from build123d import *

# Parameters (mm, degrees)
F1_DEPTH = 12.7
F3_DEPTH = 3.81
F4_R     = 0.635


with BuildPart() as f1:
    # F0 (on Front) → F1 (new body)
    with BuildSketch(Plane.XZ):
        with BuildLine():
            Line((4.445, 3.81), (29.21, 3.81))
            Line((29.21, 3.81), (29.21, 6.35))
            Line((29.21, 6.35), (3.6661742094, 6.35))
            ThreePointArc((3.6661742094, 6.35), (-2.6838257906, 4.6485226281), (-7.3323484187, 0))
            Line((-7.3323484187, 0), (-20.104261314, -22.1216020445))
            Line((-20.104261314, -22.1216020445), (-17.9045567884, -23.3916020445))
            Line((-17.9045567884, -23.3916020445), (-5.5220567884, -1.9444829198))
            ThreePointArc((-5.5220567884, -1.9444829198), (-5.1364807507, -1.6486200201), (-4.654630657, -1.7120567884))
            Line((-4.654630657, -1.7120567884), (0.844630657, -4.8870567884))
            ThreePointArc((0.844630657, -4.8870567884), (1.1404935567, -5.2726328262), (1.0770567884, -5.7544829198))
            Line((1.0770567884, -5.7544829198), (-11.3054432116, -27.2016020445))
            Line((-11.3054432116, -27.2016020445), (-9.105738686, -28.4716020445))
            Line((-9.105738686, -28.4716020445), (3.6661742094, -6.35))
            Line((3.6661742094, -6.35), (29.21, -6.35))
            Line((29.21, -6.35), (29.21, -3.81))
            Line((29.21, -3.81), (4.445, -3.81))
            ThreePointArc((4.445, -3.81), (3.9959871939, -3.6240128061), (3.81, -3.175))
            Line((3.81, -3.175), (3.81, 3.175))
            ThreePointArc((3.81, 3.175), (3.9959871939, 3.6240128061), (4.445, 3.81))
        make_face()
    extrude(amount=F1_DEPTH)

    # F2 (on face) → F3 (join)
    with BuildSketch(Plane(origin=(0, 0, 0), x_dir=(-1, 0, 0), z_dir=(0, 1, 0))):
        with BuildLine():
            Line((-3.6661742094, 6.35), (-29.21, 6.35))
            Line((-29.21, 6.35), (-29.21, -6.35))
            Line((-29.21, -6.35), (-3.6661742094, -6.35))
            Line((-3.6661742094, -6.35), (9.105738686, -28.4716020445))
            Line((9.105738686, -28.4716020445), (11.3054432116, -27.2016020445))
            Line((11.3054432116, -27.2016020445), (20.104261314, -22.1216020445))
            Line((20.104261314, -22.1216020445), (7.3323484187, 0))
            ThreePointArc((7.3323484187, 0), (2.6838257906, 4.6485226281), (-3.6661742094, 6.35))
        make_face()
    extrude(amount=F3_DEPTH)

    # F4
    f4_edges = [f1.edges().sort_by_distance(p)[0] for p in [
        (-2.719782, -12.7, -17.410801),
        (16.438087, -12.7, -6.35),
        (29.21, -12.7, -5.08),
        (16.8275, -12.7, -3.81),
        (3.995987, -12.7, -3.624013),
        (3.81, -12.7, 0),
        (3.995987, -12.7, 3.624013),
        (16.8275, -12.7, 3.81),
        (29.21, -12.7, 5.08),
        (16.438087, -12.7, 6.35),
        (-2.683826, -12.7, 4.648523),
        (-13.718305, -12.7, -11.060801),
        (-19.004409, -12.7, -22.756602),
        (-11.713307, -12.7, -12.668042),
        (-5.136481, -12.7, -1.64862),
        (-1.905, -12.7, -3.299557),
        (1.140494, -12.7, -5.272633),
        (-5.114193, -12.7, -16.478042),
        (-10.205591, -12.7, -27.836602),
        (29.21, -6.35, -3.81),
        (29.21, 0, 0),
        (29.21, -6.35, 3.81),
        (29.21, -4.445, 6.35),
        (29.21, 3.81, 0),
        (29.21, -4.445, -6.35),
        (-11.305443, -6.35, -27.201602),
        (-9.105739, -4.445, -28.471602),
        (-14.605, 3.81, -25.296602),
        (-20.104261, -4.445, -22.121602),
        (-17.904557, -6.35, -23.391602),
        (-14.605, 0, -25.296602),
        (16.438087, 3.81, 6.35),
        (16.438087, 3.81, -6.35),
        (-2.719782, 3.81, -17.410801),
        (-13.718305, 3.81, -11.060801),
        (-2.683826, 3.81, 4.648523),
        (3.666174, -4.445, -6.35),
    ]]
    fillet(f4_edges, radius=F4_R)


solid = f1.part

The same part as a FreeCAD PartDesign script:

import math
import FreeCAD as App
import Part
import Sketcher

V = App.Vector
Q = App.Units.Quantity


def edges_at(feature, points):
    """Names of the edges that pass closest to the given points."""
    edges = feature.Shape.Edges
    near = lambda p: min(range(len(edges)), key=lambda i: edges[i].distToShape(Part.Vertex(*p))[0])
    return sorted({f"Edge{near(p) + 1}" for p in points})

doc = App.newDocument("Part")
params = doc.addObject("Spreadsheet::Sheet", "Params")
for row, (alias, value) in enumerate([
    ("sketch1_radius", "0.5 in"),
    ("sketch1_height", "0.1 in"),
    ("sketch1_radius2", "0.025 in"),
    ("sketch1_length", "0.1 in"),
    ("sketch1_width", "0.975 in"),
    ("pad1_length", "0.5 in"),
    ("sketch2_radius", "0.5 in"),
    ("pad2_length", "0.15 in"),
    ("fillet_radius", "0.025 in"),
], start=1):
    params.set(f"A{row}", alias)
    params.set(f"B{row}", "=" + value)
    params.setAlias(f"B{row}", alias)

body = doc.addObject("PartDesign::Body", "Body")

sketch1 = doc.addObject("Sketcher::SketchObject", "Sketch")
body.addObject(sketch1)
sketch1.AttachmentSupport = (doc.XZ_Plane, [""])
sketch1.MapMode = "FlatFace"
sketch1.addGeometry(Part.LineSegment(V(4.445, 3.81, 0), V(29.21, 3.81, 0)), False)
sketch1.addGeometry(Part.LineSegment(V(29.21, 3.81, 0), V(29.21, 6.35, 0)), False)
sketch1.addGeometry(Part.LineSegment(V(29.21, 6.35, 0), V(3.666174, 6.35, 0)), False)
sketch1.addGeometry(Part.ArcOfCircle(Part.Circle(V(3.666174, -6.35, 0), V(0, 0, 1), 12.7), math.radians(90), math.radians(150)), False)
sketch1.addGeometry(Part.LineSegment(V(-7.332348, 0, 0), V(-20.104261, -22.121602, 0)), False)
sketch1.addGeometry(Part.LineSegment(V(-20.104261, -22.121602, 0), V(-17.904557, -23.391602, 0)), False)
sketch1.addGeometry(Part.LineSegment(V(-17.904557, -23.391602, 0), V(-5.522057, -1.944483, 0)), False)
sketch1.addGeometry(Part.ArcOfCircle(Part.Circle(V(-4.972131, -2.261983, 0), V(0, 0, 1), 0.635), math.radians(60), math.radians(150)), False)
sketch1.addGeometry(Part.LineSegment(V(-4.654631, -1.712057, 0), V(0.844631, -4.887057, 0)), False)
sketch1.addGeometry(Part.ArcOfCircle(Part.Circle(V(0.527131, -5.436983, 0), V(0, 0, 1), 0.635), math.radians(-30), math.radians(60)), False)
sketch1.addGeometry(Part.LineSegment(V(1.077057, -5.754483, 0), V(-11.305443, -27.201602, 0)), False)
sketch1.addGeometry(Part.LineSegment(V(-11.305443, -27.201602, 0), V(-9.105739, -28.471602, 0)), False)
sketch1.addGeometry(Part.LineSegment(V(-9.105739, -28.471602, 0), V(3.666174, -6.35, 0)), False)
sketch1.addGeometry(Part.LineSegment(V(3.666174, -6.35, 0), V(29.21, -6.35, 0)), False)
sketch1.addGeometry(Part.LineSegment(V(29.21, -6.35, 0), V(29.21, -3.81, 0)), False)
sketch1.addGeometry(Part.LineSegment(V(29.21, -3.81, 0), V(4.445, -3.81, 0)), False)
sketch1.addGeometry(Part.ArcOfCircle(Part.Circle(V(4.445, -3.175, 0), V(0, 0, 1), 0.635), math.radians(180), math.radians(270)), False)
sketch1.addGeometry(Part.LineSegment(V(3.81, -3.175, 0), V(3.81, 3.175, 0)), False)
sketch1.addGeometry(Part.ArcOfCircle(Part.Circle(V(4.445, 3.175, 0), V(0, 0, 1), 0.635), math.radians(90), math.radians(180)), False)
sketch1.addConstraint(Sketcher.Constraint("Coincident", 0, 2, 1, 1))
sketch1.addConstraint(Sketcher.Constraint("Coincident", 1, 2, 2, 1))
sketch1.addConstraint(Sketcher.Constraint("Tangent", 2, 2, 3, 1))
sketch1.addConstraint(Sketcher.Constraint("Tangent", 3, 2, 4, 1))
sketch1.addConstraint(Sketcher.Constraint("Coincident", 4, 2, 5, 1))
sketch1.addConstraint(Sketcher.Constraint("Coincident", 5, 2, 6, 1))
sketch1.addConstraint(Sketcher.Constraint("Tangent", 6, 2, 7, 2))
sketch1.addConstraint(Sketcher.Constraint("Tangent", 7, 1, 8, 1))
sketch1.addConstraint(Sketcher.Constraint("Tangent", 8, 2, 9, 2))
sketch1.addConstraint(Sketcher.Constraint("Tangent", 9, 1, 10, 1))
sketch1.addConstraint(Sketcher.Constraint("Coincident", 10, 2, 11, 1))
sketch1.addConstraint(Sketcher.Constraint("Coincident", 11, 2, 12, 1))
sketch1.addConstraint(Sketcher.Constraint("Coincident", 12, 2, 13, 1))
sketch1.addConstraint(Sketcher.Constraint("Coincident", 13, 2, 14, 1))
sketch1.addConstraint(Sketcher.Constraint("Coincident", 14, 2, 15, 1))
sketch1.addConstraint(Sketcher.Constraint("Tangent", 15, 2, 16, 2))
sketch1.addConstraint(Sketcher.Constraint("Tangent", 16, 1, 17, 1))
sketch1.addConstraint(Sketcher.Constraint("Tangent", 17, 2, 18, 2))
sketch1.addConstraint(Sketcher.Constraint("Tangent", 18, 1, 0, 1))
sketch1.addConstraint(Sketcher.Constraint("Horizontal", 0))
sketch1.addConstraint(Sketcher.Constraint("Vertical", 1))
sketch1.addConstraint(Sketcher.Constraint("Horizontal", 2))
sketch1.addConstraint(Sketcher.Constraint("Horizontal", 13))
sketch1.addConstraint(Sketcher.Constraint("Vertical", 14))
sketch1.addConstraint(Sketcher.Constraint("Horizontal", 15))
sketch1.addConstraint(Sketcher.Constraint("Vertical", 17))
sketch1.addConstraint(Sketcher.Constraint("Coincident", 12, 2, 3, 3))
sketch1.addConstraint(Sketcher.Constraint("Equal", 7, 9))
sketch1.addConstraint(Sketcher.Constraint("Equal", 9, 16))
sketch1.addConstraint(Sketcher.Constraint("Equal", 16, 18))
sketch1.addConstraint(Sketcher.Constraint("Symmetric", 1, 2, 13, 2, -1))
sketch1.addConstraint(Sketcher.Constraint("PointOnObject", 3, 2, -1))
sketch1.addConstraint(Sketcher.Constraint("Perpendicular", 4, 5))
sketch1.addConstraint(Sketcher.Constraint("Perpendicular", 5, 6))
sketch1.addConstraint(Sketcher.Constraint("Perpendicular", 6, 8))
sketch1.addConstraint(Sketcher.Constraint("Perpendicular", 8, 10))
sketch1.addConstraint(Sketcher.Constraint("Perpendicular", 10, 11))
sketch1.addConstraint(Sketcher.Constraint("Perpendicular", 11, 12))
sketch1.addConstraint(Sketcher.Constraint("Equal", 1, 14))
sketch1.addConstraint(Sketcher.Constraint("Equal", 6, 10))
sketch1.addConstraint(Sketcher.Constraint("Equal", 5, 11))
sketch1.addConstraint(Sketcher.Constraint("Radius", 3, Q("0.5 in")))
sketch1.addConstraint(Sketcher.Constraint("DistanceY", 1, 1, 1, 2, Q("0.1 in")))
sketch1.addConstraint(Sketcher.Constraint("Radius", 7, Q("0.025 in")))
sketch1.addConstraint(Sketcher.Constraint("Distance", 5, Q("0.1 in")))
sketch1.addConstraint(Sketcher.Constraint("DistanceX", 0, 1, 0, 2, Q("0.975 in")))
sketch1.addConstraint(Sketcher.Constraint("DistanceX", -1, 1, 0, 2, Q("1.15 in")))
sketch1.addConstraint(Sketcher.Constraint("Distance", 6, Q("0.975 in")))
sketch1.addConstraint(Sketcher.Constraint("DistanceX", 2, 2, 2, 1, Q("25.543826 mm")))
sketch1.addConstraint(Sketcher.Constraint("DistanceX", 7, 3, -1, 1, Q("4.972131 mm")))
sketch1.setExpression("Constraints[41]", "Params.sketch1_radius")
sketch1.setExpression("Constraints[42]", "Params.sketch1_height")
sketch1.setExpression("Constraints[43]", "Params.sketch1_radius2")
sketch1.setExpression("Constraints[44]", "Params.sketch1_length")
sketch1.setExpression("Constraints[45]", "Params.sketch1_width")
pad1 = doc.addObject("PartDesign::Pad", "Pad")
body.addObject(pad1)
pad1.Profile = sketch1
pad1.setExpression("Length", "Params.pad1_length")

sketch2 = doc.addObject("Sketcher::SketchObject", "Sketch001")
body.addObject(sketch2)
sketch2.AttachmentSupport = (doc.XZ_Plane, [""])
sketch2.MapMode = "FlatFace"
sketch2.addGeometry(Part.LineSegment(V(3.666174, 6.35, 0), V(29.21, 6.35, 0)), False)
sketch2.addGeometry(Part.LineSegment(V(29.21, 6.35, 0), V(29.21, -6.35, 0)), False)
sketch2.addGeometry(Part.LineSegment(V(29.21, -6.35, 0), V(3.666174, -6.35, 0)), False)
sketch2.addGeometry(Part.LineSegment(V(3.666174, -6.35, 0), V(-9.105739, -28.471602, 0)), False)
sketch2.addGeometry(Part.LineSegment(V(-9.105739, -28.471602, 0), V(-20.104261, -22.121602, 0)), False)
sketch2.addGeometry(Part.LineSegment(V(-20.104261, -22.121602, 0), V(-7.332348, 0, 0)), False)
sketch2.addGeometry(Part.ArcOfCircle(Part.Circle(V(3.666174, -6.35, 0), V(0, 0, 1), 12.7), math.radians(90), math.radians(150)), False)
sketch2.addConstraint(Sketcher.Constraint("Coincident", 0, 2, 1, 1))
sketch2.addConstraint(Sketcher.Constraint("Coincident", 1, 2, 2, 1))
sketch2.addConstraint(Sketcher.Constraint("Coincident", 2, 2, 3, 1))
sketch2.addConstraint(Sketcher.Constraint("Coincident", 3, 2, 4, 1))
sketch2.addConstraint(Sketcher.Constraint("Coincident", 4, 2, 5, 1))
sketch2.addConstraint(Sketcher.Constraint("Tangent", 5, 2, 6, 2))
sketch2.addConstraint(Sketcher.Constraint("Tangent", 6, 1, 0, 1))
sketch2.addConstraint(Sketcher.Constraint("Horizontal", 0))
sketch2.addConstraint(Sketcher.Constraint("Vertical", 1))
sketch2.addConstraint(Sketcher.Constraint("Horizontal", 2))
sketch2.addConstraint(Sketcher.Constraint("Coincident", 2, 2, 6, 3))
sketch2.addConstraint(Sketcher.Constraint("PointOnObject", 5, 2, -1))
sketch2.addConstraint(Sketcher.Constraint("Perpendicular", 3, 4))
sketch2.addConstraint(Sketcher.Constraint("Perpendicular", 4, 5))
sketch2.addConstraint(Sketcher.Constraint("Radius", 6, Q("0.5 in")))
sketch2.addConstraint(Sketcher.Constraint("Angle", 3, Q("-120 deg")))
sketch2.addConstraint(Sketcher.Constraint("DistanceX", -1, 1, 0, 2, Q("1.15 in")))
sketch2.addConstraint(Sketcher.Constraint("DistanceX", 0, 1, 0, 2, Q("25.543826 mm")))
sketch2.addConstraint(Sketcher.Constraint("DistanceX", 3, 2, -1, 1, Q("9.105739 mm")))
sketch2.setExpression("Constraints[14]", "Params.sketch2_radius")
pad2 = doc.addObject("PartDesign::Pad", "Pad001")
body.addObject(pad2)
pad2.Profile = sketch2
pad2.setExpression("Length", "Params.pad2_length")
pad2.Reversed = True
doc.recompute()

fillet = doc.addObject("PartDesign::Fillet", "Fillet")
body.addObject(fillet)
fillet.Base = (pad2, edges_at(pad2, [
    (-2.72, -12.7, -17.411),
    (16.438, -12.7, -6.35),
    (29.21, -12.7, -5.08),
    (16.828, -12.7, -3.81),
    (3.996, -12.7, -3.624),
    (3.81, -12.7, 0),
    (3.996, -12.7, 3.624),
    (16.828, -12.7, 3.81),
    (29.21, -12.7, 5.08),
    (16.438, -12.7, 6.35),
    (-2.684, -12.7, 4.649),
    (-13.718, -12.7, -11.061),
    (-19.004, -12.7, -22.757),
    (-11.713, -12.7, -12.668),
    (-5.136, -12.7, -1.649),
    (-1.905, -12.7, -3.3),
    (1.14, -12.7, -5.273),
    (-5.114, -12.7, -16.478),
    (-10.206, -12.7, -27.837),
    (29.21, -6.35, -3.81),
    (29.21, 0, 0),
    (29.21, -6.35, 3.81),
    (29.21, -4.445, 6.35),
    (29.21, 3.81, 0),
    (29.21, -4.445, -6.35),
    (-11.305, -6.35, -27.202),
    (-9.106, -4.445, -28.472),
    (-14.605, 3.81, -25.297),
    (-20.104, -4.445, -22.122),
    (-17.905, -6.35, -23.392),
    (-14.605, 0, -25.297),
    (16.438, 3.81, 6.35),
    (16.438, 3.81, -6.35),
    (-2.72, 3.81, -17.411),
    (-13.718, 3.81, -11.061),
    (-2.684, 3.81, 4.649),
    (3.666, -4.445, -6.35),
]))
fillet.setExpression("Radius", "Params.fillet_radius")

doc.recompute()
